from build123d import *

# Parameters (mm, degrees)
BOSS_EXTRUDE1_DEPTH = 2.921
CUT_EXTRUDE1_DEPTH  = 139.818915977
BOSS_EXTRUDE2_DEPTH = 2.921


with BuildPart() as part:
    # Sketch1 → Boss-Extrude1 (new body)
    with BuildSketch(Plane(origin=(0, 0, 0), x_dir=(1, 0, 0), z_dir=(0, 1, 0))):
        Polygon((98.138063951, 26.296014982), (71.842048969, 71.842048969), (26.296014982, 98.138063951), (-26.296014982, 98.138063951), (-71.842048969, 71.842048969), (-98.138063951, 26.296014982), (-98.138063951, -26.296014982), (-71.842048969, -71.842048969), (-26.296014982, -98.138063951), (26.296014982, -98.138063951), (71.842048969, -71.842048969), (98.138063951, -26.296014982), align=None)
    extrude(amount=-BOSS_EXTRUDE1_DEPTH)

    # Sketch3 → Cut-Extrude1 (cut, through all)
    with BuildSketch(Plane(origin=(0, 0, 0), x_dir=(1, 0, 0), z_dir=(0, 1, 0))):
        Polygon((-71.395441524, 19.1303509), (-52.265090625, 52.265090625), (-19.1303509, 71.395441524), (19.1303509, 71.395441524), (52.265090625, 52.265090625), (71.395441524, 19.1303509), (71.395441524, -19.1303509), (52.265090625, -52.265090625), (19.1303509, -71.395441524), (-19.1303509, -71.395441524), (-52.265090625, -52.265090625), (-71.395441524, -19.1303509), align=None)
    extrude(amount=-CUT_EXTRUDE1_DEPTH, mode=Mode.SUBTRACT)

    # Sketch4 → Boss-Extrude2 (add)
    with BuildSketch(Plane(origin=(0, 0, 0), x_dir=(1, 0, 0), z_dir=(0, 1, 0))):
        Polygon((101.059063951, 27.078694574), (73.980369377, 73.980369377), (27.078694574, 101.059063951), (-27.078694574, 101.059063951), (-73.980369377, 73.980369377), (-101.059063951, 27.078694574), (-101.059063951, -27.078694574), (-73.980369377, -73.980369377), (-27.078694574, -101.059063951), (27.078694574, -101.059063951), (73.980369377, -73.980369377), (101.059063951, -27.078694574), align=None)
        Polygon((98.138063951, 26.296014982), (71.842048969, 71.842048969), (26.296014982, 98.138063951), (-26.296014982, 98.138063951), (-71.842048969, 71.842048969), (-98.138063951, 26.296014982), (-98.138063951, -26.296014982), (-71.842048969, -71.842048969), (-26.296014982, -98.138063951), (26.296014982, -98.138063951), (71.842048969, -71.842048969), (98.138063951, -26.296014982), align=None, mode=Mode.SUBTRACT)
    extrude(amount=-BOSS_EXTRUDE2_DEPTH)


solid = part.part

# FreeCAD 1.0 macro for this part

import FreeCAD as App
import Part
import Sketcher
Q = App.Units.Quantity


def add_polygon(sketch, points):
    """Adds a closed chain of lines whose ends are joined by coincident constraints."""
    first, n = sketch.GeometryCount, len(points)
    for a, b in zip(points, points[1:] + points[:1]):
        sketch.addGeometry(Part.LineSegment(App.Vector(*a, 0), App.Vector(*b, 0)), False)
    for i in range(n):
        sketch.addConstraint(Sketcher.Constraint("Coincident", first + i, 2, first + (i + 1) % n, 1))

doc = App.newDocument("Part")
body = doc.addObject("PartDesign::Body", "Body")

sketch1 = doc.addObject("Sketcher::SketchObject", "Sketch")
body.addObject(sketch1)
sketch1.AttachmentSupport = (doc.XZ_Plane, [""])
sketch1.MapMode = "FlatFace"
add_polygon(sketch1, [(98.138064, -26.296015), (71.842049, -71.842049), (26.296015, -98.138064), (-26.296015, -98.138064), (-71.842049, -71.842049), (-98.138064, -26.296015), (-98.138064, 26.296015), (-71.842049, 71.842049), (-26.296015, 98.138064), (26.296015, 98.138064), (71.842049, 71.842049), (98.138064, 26.296015)])
sketch1.addConstraint(Sketcher.Constraint("Horizontal", 2))
sketch1.addConstraint(Sketcher.Constraint("Vertical", 5))
sketch1.addConstraint(Sketcher.Constraint("Horizontal", 8))
sketch1.addConstraint(Sketcher.Constraint("Vertical", 11))
sketch1.addConstraint(Sketcher.Constraint("Symmetric", 0, 2, 6, 2, -1, 1))
sketch1.addConstraint(Sketcher.Constraint("Symmetric", 1, 2, 7, 2, -1, 1))
sketch1.addConstraint(Sketcher.Constraint("Symmetric", 3, 2, 9, 2, -1, 1))
sketch1.addConstraint(Sketcher.Constraint("Symmetric", 4, 2, 10, 2, -1, 1))
sketch1.addConstraint(Sketcher.Constraint("Symmetric", 0, 2, 3, 2, -2))
sketch1.addConstraint(Sketcher.Constraint("Perpendicular", 0, 3))
sketch1.addConstraint(Sketcher.Constraint("Perpendicular", 1, 4))
sketch1.addConstraint(Sketcher.Constraint("Perpendicular", 3, 6))
sketch1.addConstraint(Sketcher.Constraint("Perpendicular", 6, 9))
sketch1.addConstraint(Sketcher.Constraint("Horizontal", 5, 2, 10, 2))
sketch1.addConstraint(Sketcher.Constraint("Equal", 8, 5))
sketch1.addConstraint(Sketcher.Constraint("Equal", 0, 1))
sketch1.addConstraint(Sketcher.Constraint("Angle", 0, Q("-120 deg")))
sketch1.addConstraint(Sketcher.Constraint("DistanceX", 2, 2, 2, 1, 52.59203))
sketch1.addConstraint(Sketcher.Constraint("Distance", 0, 52.59203))
pad1 = doc.addObject("PartDesign::Pad", "Pad")
body.addObject(pad1)
pad1.Profile = sketch1
pad1.Length = Q("0.115 in")

sketch2 = doc.addObject("Sketcher::SketchObject", "Sketch001")
body.addObject(sketch2)
sketch2.AttachmentSupport = (doc.XZ_Plane, [""])
sketch2.MapMode = "FlatFace"
add_polygon(sketch2, [(-52.265091, -52.265091), (-71.395442, -19.130351), (-71.395442, 19.130351), (-52.265091, 52.265091), (-19.130351, 71.395442), (19.130351, 71.395442), (52.265091, 52.265091), (71.395442, 19.130351), (71.395442, -19.130351), (52.265091, -52.265091), (19.130351, -71.395442), (-19.130351, -71.395442)])
sketch2.addConstraint(Sketcher.Constraint("Vertical", 1))
sketch2.addConstraint(Sketcher.Constraint("Horizontal", 4))
sketch2.addConstraint(Sketcher.Constraint("Vertical", 7))
sketch2.addConstraint(Sketcher.Constraint("Horizontal", 10))
sketch2.addConstraint(Sketcher.Constraint("Symmetric", 0, 2, 6, 2, -1, 1))
sketch2.addConstraint(Sketcher.Constraint("Symmetric", 2, 2, 8, 2, -1, 1))
sketch2.addConstraint(Sketcher.Constraint("Symmetric", 3, 2, 9, 2, -1, 1))
sketch2.addConstraint(Sketcher.Constraint("Symmetric", 5, 2, 11, 2, -1, 1))
sketch2.addConstraint(Sketcher.Constraint("Symmetric", 2, 2, 5, 2, -2))
sketch2.addConstraint(Sketcher.Constraint("Perpendicular", 0, 3))
sketch2.addConstraint(Sketcher.Constraint("Perpendicular", 2, 5))
sketch2.addConstraint(Sketcher.Constraint("Perpendicular", 5, 8))
sketch2.addConstraint(Sketcher.Constraint("Perpendicular", 8, 11))
sketch2.addConstraint(Sketcher.Constraint("Horizontal", 1, 2, 6, 2))
sketch2.addConstraint(Sketcher.Constraint("Equal", 10, 1))
sketch2.addConstraint(Sketcher.Constraint("Equal", 2, 3))
sketch2.addConstraint(Sketcher.Constraint("Angle", 0, Q("120 deg")))
sketch2.addConstraint(Sketcher.Constraint("DistanceX", 4, 1, 4, 2, 38.260702))
sketch2.addConstraint(Sketcher.Constraint("Distance", 0, 38.260702))
pocket1 = doc.addObject("PartDesign::Pocket", "Pocket")
body.addObject(pocket1)
pocket1.Profile = sketch2
pocket1.Type = "ThroughAll"
pocket1.Reversed = True

sketch3 = doc.addObject("Sketcher::SketchObject", "Sketch002")
body.addObject(sketch3)
sketch3.AttachmentSupport = (doc.XZ_Plane, [""])
sketch3.MapMode = "FlatFace"
add_polygon(sketch3, [(101.059064, -27.078695), (73.980369, -73.980369), (27.078695, -101.059064), (-27.078695, -101.059064), (-73.980369, -73.980369), (-101.059064, -27.078695), (-101.059064, 27.078695), (-73.980369, 73.980369), (-27.078695, 101.059064), (27.078695, 101.059064), (73.980369, 73.980369), (101.059064, 27.078695)])
add_polygon(sketch3, [(71.842049, -71.842049), (98.138064, -26.296015), (98.138064, 26.296015), (71.842049, 71.842049), (26.296015, 98.138064), (-26.296015, 98.138064), (-71.842049, 71.842049), (-98.138064, 26.296015), (-98.138064, -26.296015), (-71.842049, -71.842049), (-26.296015, -98.138064), (26.296015, -98.138064)])
sketch3.addConstraint(Sketcher.Constraint("Horizontal", 2))
sketch3.addConstraint(Sketcher.Constraint("Vertical", 5))
sketch3.addConstraint(Sketcher.Constraint("Horizontal", 8))
sketch3.addConstraint(Sketcher.Constraint("Vertical", 11))
sketch3.addConstraint(Sketcher.Constraint("Vertical", 13))
sketch3.addConstraint(Sketcher.Constraint("Horizontal", 16))
sketch3.addConstraint(Sketcher.Constraint("Vertical", 19))
sketch3.addConstraint(Sketcher.Constraint("Horizontal", 22))
sketch3.addConstraint(Sketcher.Constraint("Symmetric", 0, 2, 6, 2, -1, 1))
sketch3.addConstraint(Sketcher.Constraint("Symmetric", 1, 2, 7, 2, -1, 1))
sketch3.addConstraint(Sketcher.Constraint("Symmetric", 3, 2, 9, 2, -1, 1))
sketch3.addConstraint(Sketcher.Constraint("Symmetric", 4, 2, 10, 2, -1, 1))
sketch3.addConstraint(Sketcher.Constraint("Symmetric", 12, 2, 18, 2, -1, 1))
sketch3.addConstraint(Sketcher.Constraint("Symmetric", 14, 2, 20, 2, -1, 1))
sketch3.addConstraint(Sketcher.Constraint("Symmetric", 15, 2, 21, 2, -1, 1))
sketch3.addConstraint(Sketcher.Constraint("Symmetric", 17, 2, 23, 2, -1, 1))
sketch3.addConstraint(Sketcher.Constraint("Symmetric", 0, 2, 3, 2, -2))
sketch3.addConstraint(Sketcher.Constraint("Symmetric", 14, 2, 17, 2, -2))
sketch3.addConstraint(Sketcher.Constraint("Perpendicular", 0, 3))
sketch3.addConstraint(Sketcher.Constraint("Perpendicular", 1, 4))
sketch3.addConstraint(Sketcher.Constraint("Perpendicular", 3, 6))
sketch3.addConstraint(Sketcher.Constraint("Perpendicular", 6, 9))
sketch3.addConstraint(Sketcher.Constraint("Perpendicular", 9, 12))
sketch3.addConstraint(Sketcher.Constraint("Parallel", 10, 14))
sketch3.addConstraint(Sketcher.Constraint("Perpendicular", 12, 15))
sketch3.addConstraint(Sketcher.Constraint("Perpendicular", 14, 17))
sketch3.addConstraint(Sketcher.Constraint("Perpendicular", 17, 20))
sketch3.addConstraint(Sketcher.Constraint("Perpendicular", 20, 23))
sketch3.addConstraint(Sketcher.Constraint("Horizontal", 5, 2, 10, 2))
sketch3.addConstraint(Sketcher.Constraint("Equal", 8, 5))
sketch3.addConstraint(Sketcher.Constraint("Equal", 22, 13))
sketch3.addConstraint(Sketcher.Constraint("Equal", 0, 1))
sketch3.addConstraint(Sketcher.Constraint("Equal", 14, 15))
sketch3.addConstraint(Sketcher.Constraint("Angle", 0, Q("-120 deg")))
sketch3.addConstraint(Sketcher.Constraint("DistanceX", 12, 2, 11, 2, Q("0.115 in")))
sketch3.addConstraint(Sketcher.Constraint("DistanceX", 2, 2, 2, 1, 54.157389))
sketch3.addConstraint(Sketcher.Constraint("DistanceX", 16, 2, 16, 1, 52.59203))
sketch3.addConstraint(Sketcher.Constraint("Distance", 0, 54.157389))
pad2 = doc.addObject("PartDesign::Pad", "Pad001")
body.addObject(pad2)
pad2.Profile = sketch3
pad2.Length = Q("0.115 in")

doc.recompute()
